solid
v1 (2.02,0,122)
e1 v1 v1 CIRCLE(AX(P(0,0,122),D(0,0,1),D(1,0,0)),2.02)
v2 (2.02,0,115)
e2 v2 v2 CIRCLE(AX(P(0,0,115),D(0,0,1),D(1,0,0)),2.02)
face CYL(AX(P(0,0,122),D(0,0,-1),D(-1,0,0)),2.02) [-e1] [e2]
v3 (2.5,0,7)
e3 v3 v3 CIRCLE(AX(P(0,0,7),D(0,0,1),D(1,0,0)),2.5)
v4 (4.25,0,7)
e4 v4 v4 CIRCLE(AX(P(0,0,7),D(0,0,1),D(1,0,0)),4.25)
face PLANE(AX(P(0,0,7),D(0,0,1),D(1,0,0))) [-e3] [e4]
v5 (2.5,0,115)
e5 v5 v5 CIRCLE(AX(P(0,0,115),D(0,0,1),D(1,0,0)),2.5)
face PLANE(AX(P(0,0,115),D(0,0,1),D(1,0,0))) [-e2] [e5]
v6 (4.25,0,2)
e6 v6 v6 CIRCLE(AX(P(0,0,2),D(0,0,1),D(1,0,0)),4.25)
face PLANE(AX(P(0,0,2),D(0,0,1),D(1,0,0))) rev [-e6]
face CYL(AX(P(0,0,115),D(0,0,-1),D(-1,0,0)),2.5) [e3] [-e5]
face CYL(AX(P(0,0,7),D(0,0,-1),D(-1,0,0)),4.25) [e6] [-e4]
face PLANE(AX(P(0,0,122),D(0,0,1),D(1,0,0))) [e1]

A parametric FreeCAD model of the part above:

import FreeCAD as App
import Part
import Sketcher

V = App.Vector

doc = App.newDocument("Part")
body = doc.addObject("PartDesign::Body", "Body")

# Sketch on XY plane
sketch1 = body.newObject("Sketcher::SketchObject", "Sketch")
sketch1.AttachmentSupport = (doc.getObject("XY_Plane"), [""])
sketch1.MapMode = "FlatFace"
sketch1.AttachmentOffset = App.Placement(V(0, 0, 7), App.Rotation())
sketch1.addGeometry(Part.Circle(V(0, 0, 0), V(0, 0, 1), 2.5), False)
sketch1.addConstraint([
    Sketcher.Constraint("Coincident", 0, 3, -1, 1),
    Sketcher.Constraint("Diameter", 0, 5.0),
])
pad1 = body.newObject("PartDesign::Pad", "Pad")
pad1.Profile = sketch1
pad1.Length = 108

# Sketch on XY plane
sketch2 = body.newObject("Sketcher::SketchObject", "Sketch001")
sketch2.AttachmentSupport = (doc.getObject("XY_Plane"), [""])
sketch2.MapMode = "FlatFace"
sketch2.AttachmentOffset = App.Placement(V(0, 0, 115), App.Rotation())
sketch2.addGeometry(Part.Circle(V(0, 0, 0), V(0, 0, 1), 2), False)
sketch2.addConstraint([
    Sketcher.Constraint("Coincident", 0, 3, -1, 1),
    Sketcher.Constraint("Diameter", 0, 4.04),
])
pad2 = body.newObject("PartDesign::Pad", "Pad001")
pad2.Profile = sketch2
pad2.Length = 7

# Sketch on XY plane
sketch3 = body.newObject("Sketcher::SketchObject", "Sketch002")
sketch3.AttachmentSupport = (doc.getObject("XY_Plane"), [""])
sketch3.MapMode = "FlatFace"
sketch3.AttachmentOffset = App.Placement(V(0, 0, 2), App.Rotation())
sketch3.addGeometry(Part.Circle(V(0, 0, 0), V(0, 0, 1), 4.2), False)
sketch3.addConstraint([
    Sketcher.Constraint("Coincident", 0, 3, -1, 1),
    Sketcher.Constraint("Diameter", 0, 8.5),
])
pad3 = body.newObject("PartDesign::Pad", "Pad002")
pad3.Profile = sketch3
pad3.Length = 5

doc.recompute()
